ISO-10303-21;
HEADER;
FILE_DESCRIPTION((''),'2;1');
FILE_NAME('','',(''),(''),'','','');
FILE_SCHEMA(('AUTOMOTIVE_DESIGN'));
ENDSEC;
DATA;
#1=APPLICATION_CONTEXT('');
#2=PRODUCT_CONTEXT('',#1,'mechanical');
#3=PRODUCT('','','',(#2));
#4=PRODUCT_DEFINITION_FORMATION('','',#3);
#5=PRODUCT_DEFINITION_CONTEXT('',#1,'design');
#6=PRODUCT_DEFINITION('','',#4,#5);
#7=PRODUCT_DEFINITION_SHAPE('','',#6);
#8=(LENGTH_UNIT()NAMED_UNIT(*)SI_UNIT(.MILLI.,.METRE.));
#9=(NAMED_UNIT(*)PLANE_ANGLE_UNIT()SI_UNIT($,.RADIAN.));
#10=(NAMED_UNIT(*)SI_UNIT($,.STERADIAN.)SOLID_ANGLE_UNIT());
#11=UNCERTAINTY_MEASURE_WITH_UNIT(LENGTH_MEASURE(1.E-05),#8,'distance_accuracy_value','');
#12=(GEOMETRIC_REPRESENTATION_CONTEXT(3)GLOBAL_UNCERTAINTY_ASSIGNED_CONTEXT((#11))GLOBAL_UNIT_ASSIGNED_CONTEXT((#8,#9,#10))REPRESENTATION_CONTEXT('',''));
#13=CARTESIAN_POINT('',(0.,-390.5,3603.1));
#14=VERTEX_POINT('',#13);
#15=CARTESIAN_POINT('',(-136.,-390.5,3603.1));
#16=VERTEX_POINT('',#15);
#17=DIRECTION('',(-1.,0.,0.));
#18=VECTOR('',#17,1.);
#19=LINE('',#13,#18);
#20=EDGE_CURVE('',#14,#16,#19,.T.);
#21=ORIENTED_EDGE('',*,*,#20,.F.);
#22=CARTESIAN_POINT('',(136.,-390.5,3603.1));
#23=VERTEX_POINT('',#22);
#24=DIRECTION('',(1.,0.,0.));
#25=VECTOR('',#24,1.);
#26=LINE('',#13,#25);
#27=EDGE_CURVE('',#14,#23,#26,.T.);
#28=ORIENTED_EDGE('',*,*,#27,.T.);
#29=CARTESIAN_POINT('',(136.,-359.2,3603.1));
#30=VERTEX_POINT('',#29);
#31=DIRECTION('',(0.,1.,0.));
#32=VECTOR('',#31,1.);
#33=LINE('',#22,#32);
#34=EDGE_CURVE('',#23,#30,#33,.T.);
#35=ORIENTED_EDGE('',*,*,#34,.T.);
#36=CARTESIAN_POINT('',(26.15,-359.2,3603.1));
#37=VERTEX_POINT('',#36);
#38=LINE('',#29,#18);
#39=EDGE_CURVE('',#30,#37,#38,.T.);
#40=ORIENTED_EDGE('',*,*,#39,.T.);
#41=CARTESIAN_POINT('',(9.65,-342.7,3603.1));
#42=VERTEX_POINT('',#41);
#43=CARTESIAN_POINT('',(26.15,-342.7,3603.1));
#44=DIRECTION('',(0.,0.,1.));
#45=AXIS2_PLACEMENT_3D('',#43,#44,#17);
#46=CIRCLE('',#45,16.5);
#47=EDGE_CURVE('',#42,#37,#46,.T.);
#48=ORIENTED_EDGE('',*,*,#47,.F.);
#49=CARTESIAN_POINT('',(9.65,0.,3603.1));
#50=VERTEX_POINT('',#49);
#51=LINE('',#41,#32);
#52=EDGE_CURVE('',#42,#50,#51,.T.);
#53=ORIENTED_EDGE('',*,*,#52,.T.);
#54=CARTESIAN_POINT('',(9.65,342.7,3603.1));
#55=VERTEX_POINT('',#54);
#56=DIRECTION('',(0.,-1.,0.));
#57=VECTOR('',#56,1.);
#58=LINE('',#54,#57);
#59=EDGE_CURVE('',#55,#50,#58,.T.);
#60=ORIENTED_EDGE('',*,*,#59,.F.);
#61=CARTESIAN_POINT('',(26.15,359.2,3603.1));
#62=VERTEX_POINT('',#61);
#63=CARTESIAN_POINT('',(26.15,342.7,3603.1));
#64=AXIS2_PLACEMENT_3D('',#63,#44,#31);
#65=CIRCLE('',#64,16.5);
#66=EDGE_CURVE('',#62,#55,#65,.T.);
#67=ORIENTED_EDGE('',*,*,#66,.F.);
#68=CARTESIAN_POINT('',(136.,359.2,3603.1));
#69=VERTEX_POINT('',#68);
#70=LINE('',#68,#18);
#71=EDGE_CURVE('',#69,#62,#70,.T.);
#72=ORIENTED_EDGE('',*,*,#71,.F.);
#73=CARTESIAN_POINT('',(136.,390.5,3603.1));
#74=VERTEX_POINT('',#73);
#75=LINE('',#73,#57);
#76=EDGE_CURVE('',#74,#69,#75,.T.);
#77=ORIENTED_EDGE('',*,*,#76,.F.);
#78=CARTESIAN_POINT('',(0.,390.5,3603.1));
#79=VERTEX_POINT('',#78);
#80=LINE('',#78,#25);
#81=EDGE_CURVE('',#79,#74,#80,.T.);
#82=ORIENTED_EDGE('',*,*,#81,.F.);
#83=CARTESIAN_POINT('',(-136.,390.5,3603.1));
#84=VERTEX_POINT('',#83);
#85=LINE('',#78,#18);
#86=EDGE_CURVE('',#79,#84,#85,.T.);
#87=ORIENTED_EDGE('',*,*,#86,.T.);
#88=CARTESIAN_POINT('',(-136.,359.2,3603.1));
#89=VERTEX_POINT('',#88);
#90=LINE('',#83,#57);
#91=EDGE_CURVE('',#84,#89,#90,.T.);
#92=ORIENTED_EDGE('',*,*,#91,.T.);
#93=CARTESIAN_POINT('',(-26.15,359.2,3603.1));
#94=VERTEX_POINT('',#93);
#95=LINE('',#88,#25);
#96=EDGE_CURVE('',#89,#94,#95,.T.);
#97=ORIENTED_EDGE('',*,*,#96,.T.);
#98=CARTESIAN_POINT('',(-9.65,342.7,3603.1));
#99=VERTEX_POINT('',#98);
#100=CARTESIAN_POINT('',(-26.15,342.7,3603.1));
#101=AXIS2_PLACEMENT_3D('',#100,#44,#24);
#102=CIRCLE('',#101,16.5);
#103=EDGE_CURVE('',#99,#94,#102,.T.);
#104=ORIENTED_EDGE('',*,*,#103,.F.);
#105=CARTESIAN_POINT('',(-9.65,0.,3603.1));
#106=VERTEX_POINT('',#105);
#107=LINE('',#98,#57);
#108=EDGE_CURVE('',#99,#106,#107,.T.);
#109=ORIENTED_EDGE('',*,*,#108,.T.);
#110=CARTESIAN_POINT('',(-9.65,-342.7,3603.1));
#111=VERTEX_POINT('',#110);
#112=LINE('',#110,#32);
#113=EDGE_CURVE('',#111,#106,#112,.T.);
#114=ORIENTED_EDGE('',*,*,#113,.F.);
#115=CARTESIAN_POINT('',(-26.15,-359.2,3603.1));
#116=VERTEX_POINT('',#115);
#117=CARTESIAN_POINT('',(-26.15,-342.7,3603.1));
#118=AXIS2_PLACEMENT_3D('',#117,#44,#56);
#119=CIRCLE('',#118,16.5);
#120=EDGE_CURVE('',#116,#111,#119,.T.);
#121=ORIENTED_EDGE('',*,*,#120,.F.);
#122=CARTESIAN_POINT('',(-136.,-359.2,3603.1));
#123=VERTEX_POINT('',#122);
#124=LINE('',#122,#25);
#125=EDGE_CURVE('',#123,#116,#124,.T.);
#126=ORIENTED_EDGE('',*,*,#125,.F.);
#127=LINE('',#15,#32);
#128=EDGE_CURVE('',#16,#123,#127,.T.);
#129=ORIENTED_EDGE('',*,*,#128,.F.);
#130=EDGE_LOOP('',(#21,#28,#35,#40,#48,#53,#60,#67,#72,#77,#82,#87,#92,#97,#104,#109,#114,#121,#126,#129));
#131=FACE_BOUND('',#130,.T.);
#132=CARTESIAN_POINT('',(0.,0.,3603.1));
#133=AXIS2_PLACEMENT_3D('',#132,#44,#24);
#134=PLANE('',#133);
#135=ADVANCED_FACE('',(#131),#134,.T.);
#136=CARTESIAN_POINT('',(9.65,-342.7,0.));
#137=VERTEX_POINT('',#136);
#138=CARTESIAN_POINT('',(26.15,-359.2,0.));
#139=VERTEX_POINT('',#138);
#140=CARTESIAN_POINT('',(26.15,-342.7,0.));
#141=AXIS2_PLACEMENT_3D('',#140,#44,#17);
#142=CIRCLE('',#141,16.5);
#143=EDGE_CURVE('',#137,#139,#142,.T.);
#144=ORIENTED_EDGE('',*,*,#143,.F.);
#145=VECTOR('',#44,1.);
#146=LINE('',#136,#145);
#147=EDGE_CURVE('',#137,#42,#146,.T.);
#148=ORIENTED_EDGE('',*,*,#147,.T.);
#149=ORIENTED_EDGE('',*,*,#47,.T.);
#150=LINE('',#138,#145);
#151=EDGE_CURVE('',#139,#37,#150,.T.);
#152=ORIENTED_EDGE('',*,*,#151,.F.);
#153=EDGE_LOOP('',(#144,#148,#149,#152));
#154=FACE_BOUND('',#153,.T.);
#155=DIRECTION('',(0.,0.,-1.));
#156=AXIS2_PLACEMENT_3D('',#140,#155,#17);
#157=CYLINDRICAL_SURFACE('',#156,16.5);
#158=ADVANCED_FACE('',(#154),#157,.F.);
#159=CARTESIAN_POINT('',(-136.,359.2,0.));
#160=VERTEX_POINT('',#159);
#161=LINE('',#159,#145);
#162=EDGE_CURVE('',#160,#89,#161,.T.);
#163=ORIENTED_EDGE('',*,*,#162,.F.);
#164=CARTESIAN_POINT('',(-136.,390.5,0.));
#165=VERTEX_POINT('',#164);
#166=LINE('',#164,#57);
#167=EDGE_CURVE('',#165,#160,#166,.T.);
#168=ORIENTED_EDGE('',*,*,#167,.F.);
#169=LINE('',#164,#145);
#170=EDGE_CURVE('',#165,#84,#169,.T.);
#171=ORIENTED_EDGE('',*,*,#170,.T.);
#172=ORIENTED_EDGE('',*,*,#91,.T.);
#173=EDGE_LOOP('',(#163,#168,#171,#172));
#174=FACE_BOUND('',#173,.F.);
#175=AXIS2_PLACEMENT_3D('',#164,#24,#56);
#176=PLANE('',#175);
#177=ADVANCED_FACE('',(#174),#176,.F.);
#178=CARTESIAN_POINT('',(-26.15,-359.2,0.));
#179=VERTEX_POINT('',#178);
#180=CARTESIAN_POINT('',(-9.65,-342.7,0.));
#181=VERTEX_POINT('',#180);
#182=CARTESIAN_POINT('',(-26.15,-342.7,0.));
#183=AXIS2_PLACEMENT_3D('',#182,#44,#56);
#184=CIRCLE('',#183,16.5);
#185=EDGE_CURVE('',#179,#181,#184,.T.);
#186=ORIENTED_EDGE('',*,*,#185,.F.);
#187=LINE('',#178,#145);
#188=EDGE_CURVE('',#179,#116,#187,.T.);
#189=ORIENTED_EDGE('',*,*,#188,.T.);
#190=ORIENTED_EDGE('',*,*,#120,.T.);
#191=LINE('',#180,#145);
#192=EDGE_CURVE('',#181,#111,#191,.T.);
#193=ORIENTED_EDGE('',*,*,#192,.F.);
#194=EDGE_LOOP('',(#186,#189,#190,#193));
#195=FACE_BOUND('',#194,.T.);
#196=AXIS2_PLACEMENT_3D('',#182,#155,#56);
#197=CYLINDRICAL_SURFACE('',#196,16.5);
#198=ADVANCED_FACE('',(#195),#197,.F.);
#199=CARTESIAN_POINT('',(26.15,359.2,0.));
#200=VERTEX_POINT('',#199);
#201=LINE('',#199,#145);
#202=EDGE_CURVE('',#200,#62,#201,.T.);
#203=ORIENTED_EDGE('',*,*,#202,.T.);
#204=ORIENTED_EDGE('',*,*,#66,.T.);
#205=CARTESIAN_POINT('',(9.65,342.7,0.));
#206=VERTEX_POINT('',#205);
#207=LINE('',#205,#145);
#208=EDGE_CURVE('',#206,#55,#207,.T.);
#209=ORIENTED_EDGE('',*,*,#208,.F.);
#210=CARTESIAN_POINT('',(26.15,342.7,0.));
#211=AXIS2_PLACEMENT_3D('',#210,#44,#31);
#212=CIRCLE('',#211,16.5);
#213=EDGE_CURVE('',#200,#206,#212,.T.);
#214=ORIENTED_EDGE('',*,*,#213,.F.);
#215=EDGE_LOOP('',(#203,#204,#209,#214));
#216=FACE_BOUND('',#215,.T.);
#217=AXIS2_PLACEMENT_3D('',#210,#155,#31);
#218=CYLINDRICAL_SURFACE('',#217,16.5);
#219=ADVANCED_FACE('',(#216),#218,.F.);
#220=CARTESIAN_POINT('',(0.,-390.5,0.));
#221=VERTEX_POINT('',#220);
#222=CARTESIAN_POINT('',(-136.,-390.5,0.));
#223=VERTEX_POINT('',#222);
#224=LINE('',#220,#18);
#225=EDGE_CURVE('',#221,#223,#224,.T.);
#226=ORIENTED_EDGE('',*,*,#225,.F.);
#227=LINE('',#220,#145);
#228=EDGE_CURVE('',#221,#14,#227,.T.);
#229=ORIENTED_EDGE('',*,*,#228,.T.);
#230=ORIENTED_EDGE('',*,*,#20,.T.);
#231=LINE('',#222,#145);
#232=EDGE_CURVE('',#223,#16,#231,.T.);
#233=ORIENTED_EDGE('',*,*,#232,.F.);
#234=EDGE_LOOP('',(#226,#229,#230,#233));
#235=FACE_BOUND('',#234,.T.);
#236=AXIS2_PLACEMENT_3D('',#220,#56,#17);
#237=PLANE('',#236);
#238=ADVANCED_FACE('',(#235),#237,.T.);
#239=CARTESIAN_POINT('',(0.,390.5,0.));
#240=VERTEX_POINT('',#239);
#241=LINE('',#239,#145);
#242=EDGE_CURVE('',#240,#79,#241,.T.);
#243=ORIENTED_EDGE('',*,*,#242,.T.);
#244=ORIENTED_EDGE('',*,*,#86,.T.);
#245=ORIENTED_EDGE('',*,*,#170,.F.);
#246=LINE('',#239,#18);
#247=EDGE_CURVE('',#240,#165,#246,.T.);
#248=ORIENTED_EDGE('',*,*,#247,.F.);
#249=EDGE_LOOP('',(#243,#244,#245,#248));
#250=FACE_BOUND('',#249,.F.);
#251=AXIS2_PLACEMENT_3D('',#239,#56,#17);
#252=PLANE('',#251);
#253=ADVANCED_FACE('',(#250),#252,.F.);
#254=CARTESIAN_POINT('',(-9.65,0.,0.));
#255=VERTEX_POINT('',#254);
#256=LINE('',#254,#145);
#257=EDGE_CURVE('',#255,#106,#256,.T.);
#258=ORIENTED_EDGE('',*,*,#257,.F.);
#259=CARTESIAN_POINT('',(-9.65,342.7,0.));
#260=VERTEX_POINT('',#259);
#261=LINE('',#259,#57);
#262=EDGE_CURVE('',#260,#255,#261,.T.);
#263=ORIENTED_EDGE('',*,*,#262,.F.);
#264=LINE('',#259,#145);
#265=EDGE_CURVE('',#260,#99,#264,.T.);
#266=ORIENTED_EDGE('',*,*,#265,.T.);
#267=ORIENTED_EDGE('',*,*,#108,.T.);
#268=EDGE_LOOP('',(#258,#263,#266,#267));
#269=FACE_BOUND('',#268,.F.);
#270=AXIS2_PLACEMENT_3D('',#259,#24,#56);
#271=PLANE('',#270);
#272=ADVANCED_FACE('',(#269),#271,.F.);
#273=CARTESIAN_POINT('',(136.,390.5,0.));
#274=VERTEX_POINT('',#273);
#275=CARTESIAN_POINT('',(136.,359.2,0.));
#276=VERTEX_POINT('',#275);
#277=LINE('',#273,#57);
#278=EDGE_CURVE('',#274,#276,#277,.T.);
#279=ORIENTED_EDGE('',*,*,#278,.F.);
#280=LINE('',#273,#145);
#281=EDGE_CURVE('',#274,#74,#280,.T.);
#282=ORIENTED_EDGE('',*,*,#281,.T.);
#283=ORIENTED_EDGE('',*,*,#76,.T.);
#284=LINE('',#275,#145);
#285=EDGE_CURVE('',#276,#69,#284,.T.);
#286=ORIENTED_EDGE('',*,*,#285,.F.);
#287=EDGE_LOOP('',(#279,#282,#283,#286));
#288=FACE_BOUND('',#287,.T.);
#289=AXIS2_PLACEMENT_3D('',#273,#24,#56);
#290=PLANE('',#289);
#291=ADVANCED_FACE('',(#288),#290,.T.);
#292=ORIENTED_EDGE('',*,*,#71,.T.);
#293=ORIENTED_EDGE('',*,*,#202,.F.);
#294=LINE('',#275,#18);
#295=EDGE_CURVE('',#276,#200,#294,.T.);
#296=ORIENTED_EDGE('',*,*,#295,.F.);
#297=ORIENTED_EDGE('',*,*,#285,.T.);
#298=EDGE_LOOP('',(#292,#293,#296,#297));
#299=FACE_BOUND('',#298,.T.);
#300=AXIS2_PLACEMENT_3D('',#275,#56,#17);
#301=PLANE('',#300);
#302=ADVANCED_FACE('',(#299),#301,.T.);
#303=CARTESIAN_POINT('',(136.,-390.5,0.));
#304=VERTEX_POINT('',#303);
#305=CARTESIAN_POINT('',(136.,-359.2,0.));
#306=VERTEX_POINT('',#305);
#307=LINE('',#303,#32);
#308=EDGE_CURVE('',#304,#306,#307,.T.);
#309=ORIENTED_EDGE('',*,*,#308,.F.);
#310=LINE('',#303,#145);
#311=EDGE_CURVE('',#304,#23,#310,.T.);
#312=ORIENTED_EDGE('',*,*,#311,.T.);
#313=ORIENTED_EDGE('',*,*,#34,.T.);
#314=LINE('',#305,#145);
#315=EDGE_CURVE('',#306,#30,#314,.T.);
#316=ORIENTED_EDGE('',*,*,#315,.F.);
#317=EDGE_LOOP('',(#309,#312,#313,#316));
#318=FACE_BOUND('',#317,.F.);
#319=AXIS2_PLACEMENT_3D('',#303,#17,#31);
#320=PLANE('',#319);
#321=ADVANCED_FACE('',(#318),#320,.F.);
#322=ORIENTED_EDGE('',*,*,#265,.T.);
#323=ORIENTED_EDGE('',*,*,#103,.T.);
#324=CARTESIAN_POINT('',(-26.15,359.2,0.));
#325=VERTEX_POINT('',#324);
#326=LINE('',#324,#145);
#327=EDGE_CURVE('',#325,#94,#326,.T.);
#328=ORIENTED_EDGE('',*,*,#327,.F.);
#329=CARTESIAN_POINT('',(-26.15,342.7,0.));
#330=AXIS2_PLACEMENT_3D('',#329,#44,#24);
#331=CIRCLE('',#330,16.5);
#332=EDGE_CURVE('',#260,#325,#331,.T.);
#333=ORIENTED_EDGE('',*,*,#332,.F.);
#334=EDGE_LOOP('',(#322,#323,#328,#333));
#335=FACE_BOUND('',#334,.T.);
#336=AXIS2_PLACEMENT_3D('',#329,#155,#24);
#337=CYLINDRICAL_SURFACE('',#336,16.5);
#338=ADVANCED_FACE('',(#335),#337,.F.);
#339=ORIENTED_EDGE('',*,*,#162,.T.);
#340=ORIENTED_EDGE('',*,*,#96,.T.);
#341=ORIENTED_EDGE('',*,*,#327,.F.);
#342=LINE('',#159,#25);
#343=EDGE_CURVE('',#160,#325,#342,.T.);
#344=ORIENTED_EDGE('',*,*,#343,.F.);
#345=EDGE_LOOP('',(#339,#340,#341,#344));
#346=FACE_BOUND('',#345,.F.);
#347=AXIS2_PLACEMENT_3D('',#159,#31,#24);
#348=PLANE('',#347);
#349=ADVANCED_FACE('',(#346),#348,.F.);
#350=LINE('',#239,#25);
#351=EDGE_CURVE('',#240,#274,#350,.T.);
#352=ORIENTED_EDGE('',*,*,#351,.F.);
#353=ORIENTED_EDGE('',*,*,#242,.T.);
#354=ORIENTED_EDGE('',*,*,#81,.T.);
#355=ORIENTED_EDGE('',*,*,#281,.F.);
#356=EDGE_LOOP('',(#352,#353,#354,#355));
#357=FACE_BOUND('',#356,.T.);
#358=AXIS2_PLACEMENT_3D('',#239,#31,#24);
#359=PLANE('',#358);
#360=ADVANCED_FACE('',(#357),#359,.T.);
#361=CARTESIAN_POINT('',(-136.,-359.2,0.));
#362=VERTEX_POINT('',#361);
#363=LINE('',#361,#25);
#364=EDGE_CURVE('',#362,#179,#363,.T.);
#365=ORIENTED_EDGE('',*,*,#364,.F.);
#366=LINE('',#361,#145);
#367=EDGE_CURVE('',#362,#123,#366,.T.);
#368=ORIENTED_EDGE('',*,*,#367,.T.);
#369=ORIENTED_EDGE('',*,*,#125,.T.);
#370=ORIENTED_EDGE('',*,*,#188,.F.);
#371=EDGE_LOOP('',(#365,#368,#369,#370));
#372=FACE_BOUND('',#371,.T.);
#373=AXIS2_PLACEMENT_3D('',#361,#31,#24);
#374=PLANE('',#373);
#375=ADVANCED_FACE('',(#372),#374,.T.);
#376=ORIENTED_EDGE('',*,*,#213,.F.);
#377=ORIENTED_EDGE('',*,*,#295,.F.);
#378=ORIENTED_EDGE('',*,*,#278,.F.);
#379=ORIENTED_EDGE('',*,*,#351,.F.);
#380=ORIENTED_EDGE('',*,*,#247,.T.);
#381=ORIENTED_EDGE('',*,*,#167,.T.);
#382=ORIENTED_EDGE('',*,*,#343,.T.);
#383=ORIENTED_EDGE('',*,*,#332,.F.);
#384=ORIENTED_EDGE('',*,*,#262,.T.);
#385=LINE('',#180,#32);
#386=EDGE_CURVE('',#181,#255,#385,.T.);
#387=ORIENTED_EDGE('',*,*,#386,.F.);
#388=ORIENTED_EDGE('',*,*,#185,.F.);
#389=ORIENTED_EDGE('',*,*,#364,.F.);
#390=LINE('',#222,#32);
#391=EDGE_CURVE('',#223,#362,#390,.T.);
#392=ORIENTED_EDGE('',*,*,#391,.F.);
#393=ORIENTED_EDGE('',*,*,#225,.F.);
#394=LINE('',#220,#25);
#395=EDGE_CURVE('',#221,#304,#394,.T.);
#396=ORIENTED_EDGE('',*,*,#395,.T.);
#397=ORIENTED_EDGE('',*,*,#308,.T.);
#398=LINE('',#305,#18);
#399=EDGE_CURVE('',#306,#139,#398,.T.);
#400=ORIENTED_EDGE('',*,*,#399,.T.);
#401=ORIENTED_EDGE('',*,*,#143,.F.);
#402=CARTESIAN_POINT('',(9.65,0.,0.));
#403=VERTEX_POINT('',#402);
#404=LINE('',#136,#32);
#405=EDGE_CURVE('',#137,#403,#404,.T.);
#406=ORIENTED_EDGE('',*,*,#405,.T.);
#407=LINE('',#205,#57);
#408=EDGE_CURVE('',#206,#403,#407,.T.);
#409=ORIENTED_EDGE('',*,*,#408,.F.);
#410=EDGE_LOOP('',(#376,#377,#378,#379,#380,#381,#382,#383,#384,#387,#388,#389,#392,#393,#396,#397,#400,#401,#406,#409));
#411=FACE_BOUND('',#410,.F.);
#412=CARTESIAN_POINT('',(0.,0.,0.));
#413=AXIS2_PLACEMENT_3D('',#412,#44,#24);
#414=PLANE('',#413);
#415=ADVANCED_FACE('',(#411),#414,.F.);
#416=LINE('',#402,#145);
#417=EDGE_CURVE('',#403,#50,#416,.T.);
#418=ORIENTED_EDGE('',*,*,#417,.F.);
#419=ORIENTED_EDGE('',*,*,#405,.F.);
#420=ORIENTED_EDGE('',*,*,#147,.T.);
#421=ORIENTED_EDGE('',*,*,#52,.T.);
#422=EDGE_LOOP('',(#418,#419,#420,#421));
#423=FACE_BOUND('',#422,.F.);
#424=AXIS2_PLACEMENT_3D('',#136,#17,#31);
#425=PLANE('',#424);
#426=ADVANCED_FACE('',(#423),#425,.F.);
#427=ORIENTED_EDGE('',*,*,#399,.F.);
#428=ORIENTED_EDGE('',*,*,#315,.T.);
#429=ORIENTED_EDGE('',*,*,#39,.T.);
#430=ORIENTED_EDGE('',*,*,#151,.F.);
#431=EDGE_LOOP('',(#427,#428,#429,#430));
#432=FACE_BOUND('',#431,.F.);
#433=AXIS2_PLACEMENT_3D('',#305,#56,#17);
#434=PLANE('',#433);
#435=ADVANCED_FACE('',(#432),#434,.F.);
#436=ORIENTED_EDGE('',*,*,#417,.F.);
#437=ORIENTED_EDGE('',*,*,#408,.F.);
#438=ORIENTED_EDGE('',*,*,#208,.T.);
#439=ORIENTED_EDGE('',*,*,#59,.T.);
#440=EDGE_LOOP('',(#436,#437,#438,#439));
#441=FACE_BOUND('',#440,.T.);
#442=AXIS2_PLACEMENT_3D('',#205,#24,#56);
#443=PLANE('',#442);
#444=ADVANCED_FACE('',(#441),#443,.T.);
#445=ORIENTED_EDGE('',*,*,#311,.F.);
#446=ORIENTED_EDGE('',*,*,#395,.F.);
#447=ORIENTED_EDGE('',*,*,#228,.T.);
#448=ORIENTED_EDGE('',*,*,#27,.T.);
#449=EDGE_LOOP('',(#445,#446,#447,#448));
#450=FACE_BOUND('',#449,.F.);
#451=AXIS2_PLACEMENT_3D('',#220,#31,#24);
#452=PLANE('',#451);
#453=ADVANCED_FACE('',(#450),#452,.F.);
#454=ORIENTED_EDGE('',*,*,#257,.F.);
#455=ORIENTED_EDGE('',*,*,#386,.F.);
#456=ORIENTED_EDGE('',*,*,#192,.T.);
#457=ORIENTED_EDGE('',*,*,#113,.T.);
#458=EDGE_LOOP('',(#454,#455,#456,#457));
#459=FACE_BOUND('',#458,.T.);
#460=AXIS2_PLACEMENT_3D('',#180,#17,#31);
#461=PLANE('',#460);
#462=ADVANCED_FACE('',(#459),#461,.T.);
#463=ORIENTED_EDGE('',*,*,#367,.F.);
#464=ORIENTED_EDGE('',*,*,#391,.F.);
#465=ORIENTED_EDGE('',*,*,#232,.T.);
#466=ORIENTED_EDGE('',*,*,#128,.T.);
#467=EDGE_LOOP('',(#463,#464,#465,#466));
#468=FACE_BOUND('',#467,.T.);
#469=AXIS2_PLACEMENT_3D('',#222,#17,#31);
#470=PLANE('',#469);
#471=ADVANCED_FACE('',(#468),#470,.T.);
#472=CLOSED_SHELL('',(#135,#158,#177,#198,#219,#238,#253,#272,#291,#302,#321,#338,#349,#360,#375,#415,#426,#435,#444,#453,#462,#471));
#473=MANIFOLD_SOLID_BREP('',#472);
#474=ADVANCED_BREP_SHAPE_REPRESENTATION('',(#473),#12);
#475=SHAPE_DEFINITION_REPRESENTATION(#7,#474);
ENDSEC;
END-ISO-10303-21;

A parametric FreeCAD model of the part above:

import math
import FreeCAD as App
import Part
import Sketcher
Q = App.Units.Quantity

doc = App.newDocument("Part")
body = doc.addObject("PartDesign::Body", "Body")

# Sketch on XY plane
sketch1 = body.newObject("Sketcher::SketchObject", "Sketch")
sketch1.AttachmentSupport = (doc.getObject("XY_Plane"), [""])
sketch1.MapMode = "FlatFace"
sketch1.addGeometry(Part.LineSegment(App.Vector(-136, -359.2, 0), App.Vector(-136, -390.5, 0)), False)
sketch1.addGeometry(Part.LineSegment(App.Vector(-136, -390.5, 0), App.Vector(136, -390.5, 0)), False)
sketch1.addGeometry(Part.LineSegment(App.Vector(136, -390.5, 0), App.Vector(136, -359.2, 0)), False)
sketch1.addGeometry(Part.LineSegment(App.Vector(136, -359.2, 0), App.Vector(26.15, -359.2, 0)), False)
sketch1.addGeometry(Part.ArcOfCircle(Part.Circle(App.Vector(26.15, -342.7, 0), App.Vector(0, 0, 1), 16.5), math.radians(180), math.radians(270)), False)
sketch1.addGeometry(Part.LineSegment(App.Vector(9.65, -342.7, 0), App.Vector(9.65, 342.7, 0)), False)
sketch1.addGeometry(Part.ArcOfCircle(Part.Circle(App.Vector(26.15, 342.7, 0), App.Vector(0, 0, 1), 16.5), math.radians(90), math.radians(180)), False)
sketch1.addGeometry(Part.LineSegment(App.Vector(26.15, 359.2, 0), App.Vector(136, 359.2, 0)), False)
sketch1.addGeometry(Part.LineSegment(App.Vector(136, 359.2, 0), App.Vector(136, 390.5, 0)), False)
sketch1.addGeometry(Part.LineSegment(App.Vector(136, 390.5, 0), App.Vector(-136, 390.5, 0)), False)
sketch1.addGeometry(Part.LineSegment(App.Vector(-136, 390.5, 0), App.Vector(-136, 359.2, 0)), False)
sketch1.addGeometry(Part.LineSegment(App.Vector(-136, 359.2, 0), App.Vector(-26.15, 359.2, 0)), False)
sketch1.addGeometry(Part.ArcOfCircle(Part.Circle(App.Vector(-26.15, 342.7, 0), App.Vector(0, 0, 1), 16.5), math.radians(0), math.radians(90)), False)
sketch1.addGeometry(Part.LineSegment(App.Vector(-9.65, 342.7, 0), App.Vector(-9.65, -342.7, 0)), False)
sketch1.addGeometry(Part.ArcOfCircle(Part.Circle(App.Vector(-26.15, -342.7, 0), App.Vector(0, 0, 1), 16.5), math.radians(-90), math.radians(0)), False)
sketch1.addGeometry(Part.LineSegment(App.Vector(-26.15, -359.2, 0), App.Vector(-136, -359.2, 0)), False)
sketch1.addConstraint(Sketcher.Constraint("Coincident", 0, 2, 1, 1))
sketch1.addConstraint(Sketcher.Constraint("Coincident", 1, 2, 2, 1))
sketch1.addConstraint(Sketcher.Constraint("Coincident", 2, 2, 3, 1))
sketch1.addConstraint(Sketcher.Constraint("Tangent", 3, 2, 4, 2))
sketch1.addConstraint(Sketcher.Constraint("Tangent", 4, 1, 5, 1))
sketch1.addConstraint(Sketcher.Constraint("Tangent", 5, 2, 6, 2))
sketch1.addConstraint(Sketcher.Constraint("Tangent", 6, 1, 7, 1))
sketch1.addConstraint(Sketcher.Constraint("Coincident", 7, 2, 8, 1))
sketch1.addConstraint(Sketcher.Constraint("Coincident", 8, 2, 9, 1))
sketch1.addConstraint(Sketcher.Constraint("Coincident", 9, 2, 10, 1))
sketch1.addConstraint(Sketcher.Constraint("Coincident", 10, 2, 11, 1))
sketch1.addConstraint(Sketcher.Constraint("Tangent", 11, 2, 12, 2))
sketch1.addConstraint(Sketcher.Constraint("Tangent", 12, 1, 13, 1))
sketch1.addConstraint(Sketcher.Constraint("Tangent", 13, 2, 14, 2))
sketch1.addConstraint(Sketcher.Constraint("Tangent", 14, 1, 15, 1))
sketch1.addConstraint(Sketcher.Constraint("Coincident", 15, 2, 0, 1))
sketch1.addConstraint(Sketcher.Constraint("Vertical", 0))
sketch1.addConstraint(Sketcher.Constraint("Horizontal", 1))
sketch1.addConstraint(Sketcher.Constraint("Vertical", 2))
sketch1.addConstraint(Sketcher.Constraint("Horizontal", 3))
sketch1.addConstraint(Sketcher.Constraint("Vertical", 5))
sketch1.addConstraint(Sketcher.Constraint("Horizontal", 7))
sketch1.addConstraint(Sketcher.Constraint("Vertical", 8))
sketch1.addConstraint(Sketcher.Constraint("Horizontal", 9))
sketch1.addConstraint(Sketcher.Constraint("Vertical", 10))
sketch1.addConstraint(Sketcher.Constraint("Horizontal", 11))
sketch1.addConstraint(Sketcher.Constraint("Vertical", 13))
sketch1.addConstraint(Sketcher.Constraint("Horizontal", 15))
sketch1.addConstraint(Sketcher.Constraint("Equal", 4, 6))
sketch1.addConstraint(Sketcher.Constraint("Equal", 6, 12))
sketch1.addConstraint(Sketcher.Constraint("Equal", 12, 14))
sketch1.addConstraint(Sketcher.Constraint("Symmetric", 4, 3, 12, 3, -1, 1))
sketch1.addConstraint(Sketcher.Constraint("Symmetric", 0, 2, 8, 2, -1, 1))
sketch1.addConstraint(Sketcher.Constraint("Symmetric", 7, 2, 10, 2, -2))
sketch1.addConstraint(Sketcher.Constraint("Symmetric", 2, 2, 15, 2, -2))
sketch1.addConstraint(Sketcher.Constraint("Radius", 4, Q("16.5 mm")))
sketch1.addConstraint(Sketcher.Constraint("DistanceY", 0, 2, 0, 1, Q("31.3 mm")))
sketch1.addConstraint(Sketcher.Constraint("DistanceX", 0, 2, -1, 1, Q("136 mm")))
sketch1.addConstraint(Sketcher.Constraint("DistanceY", 0, 2, -1, 1, Q("390.5 mm")))
sketch1.addConstraint(Sketcher.Constraint("DistanceX", -1, 1, 4, 1, Q("9.65 mm")))
pad1 = body.newObject("PartDesign::Pad", "Pad")
pad1.Profile = sketch1
pad1.Length = 3603.1

doc.recompute()
